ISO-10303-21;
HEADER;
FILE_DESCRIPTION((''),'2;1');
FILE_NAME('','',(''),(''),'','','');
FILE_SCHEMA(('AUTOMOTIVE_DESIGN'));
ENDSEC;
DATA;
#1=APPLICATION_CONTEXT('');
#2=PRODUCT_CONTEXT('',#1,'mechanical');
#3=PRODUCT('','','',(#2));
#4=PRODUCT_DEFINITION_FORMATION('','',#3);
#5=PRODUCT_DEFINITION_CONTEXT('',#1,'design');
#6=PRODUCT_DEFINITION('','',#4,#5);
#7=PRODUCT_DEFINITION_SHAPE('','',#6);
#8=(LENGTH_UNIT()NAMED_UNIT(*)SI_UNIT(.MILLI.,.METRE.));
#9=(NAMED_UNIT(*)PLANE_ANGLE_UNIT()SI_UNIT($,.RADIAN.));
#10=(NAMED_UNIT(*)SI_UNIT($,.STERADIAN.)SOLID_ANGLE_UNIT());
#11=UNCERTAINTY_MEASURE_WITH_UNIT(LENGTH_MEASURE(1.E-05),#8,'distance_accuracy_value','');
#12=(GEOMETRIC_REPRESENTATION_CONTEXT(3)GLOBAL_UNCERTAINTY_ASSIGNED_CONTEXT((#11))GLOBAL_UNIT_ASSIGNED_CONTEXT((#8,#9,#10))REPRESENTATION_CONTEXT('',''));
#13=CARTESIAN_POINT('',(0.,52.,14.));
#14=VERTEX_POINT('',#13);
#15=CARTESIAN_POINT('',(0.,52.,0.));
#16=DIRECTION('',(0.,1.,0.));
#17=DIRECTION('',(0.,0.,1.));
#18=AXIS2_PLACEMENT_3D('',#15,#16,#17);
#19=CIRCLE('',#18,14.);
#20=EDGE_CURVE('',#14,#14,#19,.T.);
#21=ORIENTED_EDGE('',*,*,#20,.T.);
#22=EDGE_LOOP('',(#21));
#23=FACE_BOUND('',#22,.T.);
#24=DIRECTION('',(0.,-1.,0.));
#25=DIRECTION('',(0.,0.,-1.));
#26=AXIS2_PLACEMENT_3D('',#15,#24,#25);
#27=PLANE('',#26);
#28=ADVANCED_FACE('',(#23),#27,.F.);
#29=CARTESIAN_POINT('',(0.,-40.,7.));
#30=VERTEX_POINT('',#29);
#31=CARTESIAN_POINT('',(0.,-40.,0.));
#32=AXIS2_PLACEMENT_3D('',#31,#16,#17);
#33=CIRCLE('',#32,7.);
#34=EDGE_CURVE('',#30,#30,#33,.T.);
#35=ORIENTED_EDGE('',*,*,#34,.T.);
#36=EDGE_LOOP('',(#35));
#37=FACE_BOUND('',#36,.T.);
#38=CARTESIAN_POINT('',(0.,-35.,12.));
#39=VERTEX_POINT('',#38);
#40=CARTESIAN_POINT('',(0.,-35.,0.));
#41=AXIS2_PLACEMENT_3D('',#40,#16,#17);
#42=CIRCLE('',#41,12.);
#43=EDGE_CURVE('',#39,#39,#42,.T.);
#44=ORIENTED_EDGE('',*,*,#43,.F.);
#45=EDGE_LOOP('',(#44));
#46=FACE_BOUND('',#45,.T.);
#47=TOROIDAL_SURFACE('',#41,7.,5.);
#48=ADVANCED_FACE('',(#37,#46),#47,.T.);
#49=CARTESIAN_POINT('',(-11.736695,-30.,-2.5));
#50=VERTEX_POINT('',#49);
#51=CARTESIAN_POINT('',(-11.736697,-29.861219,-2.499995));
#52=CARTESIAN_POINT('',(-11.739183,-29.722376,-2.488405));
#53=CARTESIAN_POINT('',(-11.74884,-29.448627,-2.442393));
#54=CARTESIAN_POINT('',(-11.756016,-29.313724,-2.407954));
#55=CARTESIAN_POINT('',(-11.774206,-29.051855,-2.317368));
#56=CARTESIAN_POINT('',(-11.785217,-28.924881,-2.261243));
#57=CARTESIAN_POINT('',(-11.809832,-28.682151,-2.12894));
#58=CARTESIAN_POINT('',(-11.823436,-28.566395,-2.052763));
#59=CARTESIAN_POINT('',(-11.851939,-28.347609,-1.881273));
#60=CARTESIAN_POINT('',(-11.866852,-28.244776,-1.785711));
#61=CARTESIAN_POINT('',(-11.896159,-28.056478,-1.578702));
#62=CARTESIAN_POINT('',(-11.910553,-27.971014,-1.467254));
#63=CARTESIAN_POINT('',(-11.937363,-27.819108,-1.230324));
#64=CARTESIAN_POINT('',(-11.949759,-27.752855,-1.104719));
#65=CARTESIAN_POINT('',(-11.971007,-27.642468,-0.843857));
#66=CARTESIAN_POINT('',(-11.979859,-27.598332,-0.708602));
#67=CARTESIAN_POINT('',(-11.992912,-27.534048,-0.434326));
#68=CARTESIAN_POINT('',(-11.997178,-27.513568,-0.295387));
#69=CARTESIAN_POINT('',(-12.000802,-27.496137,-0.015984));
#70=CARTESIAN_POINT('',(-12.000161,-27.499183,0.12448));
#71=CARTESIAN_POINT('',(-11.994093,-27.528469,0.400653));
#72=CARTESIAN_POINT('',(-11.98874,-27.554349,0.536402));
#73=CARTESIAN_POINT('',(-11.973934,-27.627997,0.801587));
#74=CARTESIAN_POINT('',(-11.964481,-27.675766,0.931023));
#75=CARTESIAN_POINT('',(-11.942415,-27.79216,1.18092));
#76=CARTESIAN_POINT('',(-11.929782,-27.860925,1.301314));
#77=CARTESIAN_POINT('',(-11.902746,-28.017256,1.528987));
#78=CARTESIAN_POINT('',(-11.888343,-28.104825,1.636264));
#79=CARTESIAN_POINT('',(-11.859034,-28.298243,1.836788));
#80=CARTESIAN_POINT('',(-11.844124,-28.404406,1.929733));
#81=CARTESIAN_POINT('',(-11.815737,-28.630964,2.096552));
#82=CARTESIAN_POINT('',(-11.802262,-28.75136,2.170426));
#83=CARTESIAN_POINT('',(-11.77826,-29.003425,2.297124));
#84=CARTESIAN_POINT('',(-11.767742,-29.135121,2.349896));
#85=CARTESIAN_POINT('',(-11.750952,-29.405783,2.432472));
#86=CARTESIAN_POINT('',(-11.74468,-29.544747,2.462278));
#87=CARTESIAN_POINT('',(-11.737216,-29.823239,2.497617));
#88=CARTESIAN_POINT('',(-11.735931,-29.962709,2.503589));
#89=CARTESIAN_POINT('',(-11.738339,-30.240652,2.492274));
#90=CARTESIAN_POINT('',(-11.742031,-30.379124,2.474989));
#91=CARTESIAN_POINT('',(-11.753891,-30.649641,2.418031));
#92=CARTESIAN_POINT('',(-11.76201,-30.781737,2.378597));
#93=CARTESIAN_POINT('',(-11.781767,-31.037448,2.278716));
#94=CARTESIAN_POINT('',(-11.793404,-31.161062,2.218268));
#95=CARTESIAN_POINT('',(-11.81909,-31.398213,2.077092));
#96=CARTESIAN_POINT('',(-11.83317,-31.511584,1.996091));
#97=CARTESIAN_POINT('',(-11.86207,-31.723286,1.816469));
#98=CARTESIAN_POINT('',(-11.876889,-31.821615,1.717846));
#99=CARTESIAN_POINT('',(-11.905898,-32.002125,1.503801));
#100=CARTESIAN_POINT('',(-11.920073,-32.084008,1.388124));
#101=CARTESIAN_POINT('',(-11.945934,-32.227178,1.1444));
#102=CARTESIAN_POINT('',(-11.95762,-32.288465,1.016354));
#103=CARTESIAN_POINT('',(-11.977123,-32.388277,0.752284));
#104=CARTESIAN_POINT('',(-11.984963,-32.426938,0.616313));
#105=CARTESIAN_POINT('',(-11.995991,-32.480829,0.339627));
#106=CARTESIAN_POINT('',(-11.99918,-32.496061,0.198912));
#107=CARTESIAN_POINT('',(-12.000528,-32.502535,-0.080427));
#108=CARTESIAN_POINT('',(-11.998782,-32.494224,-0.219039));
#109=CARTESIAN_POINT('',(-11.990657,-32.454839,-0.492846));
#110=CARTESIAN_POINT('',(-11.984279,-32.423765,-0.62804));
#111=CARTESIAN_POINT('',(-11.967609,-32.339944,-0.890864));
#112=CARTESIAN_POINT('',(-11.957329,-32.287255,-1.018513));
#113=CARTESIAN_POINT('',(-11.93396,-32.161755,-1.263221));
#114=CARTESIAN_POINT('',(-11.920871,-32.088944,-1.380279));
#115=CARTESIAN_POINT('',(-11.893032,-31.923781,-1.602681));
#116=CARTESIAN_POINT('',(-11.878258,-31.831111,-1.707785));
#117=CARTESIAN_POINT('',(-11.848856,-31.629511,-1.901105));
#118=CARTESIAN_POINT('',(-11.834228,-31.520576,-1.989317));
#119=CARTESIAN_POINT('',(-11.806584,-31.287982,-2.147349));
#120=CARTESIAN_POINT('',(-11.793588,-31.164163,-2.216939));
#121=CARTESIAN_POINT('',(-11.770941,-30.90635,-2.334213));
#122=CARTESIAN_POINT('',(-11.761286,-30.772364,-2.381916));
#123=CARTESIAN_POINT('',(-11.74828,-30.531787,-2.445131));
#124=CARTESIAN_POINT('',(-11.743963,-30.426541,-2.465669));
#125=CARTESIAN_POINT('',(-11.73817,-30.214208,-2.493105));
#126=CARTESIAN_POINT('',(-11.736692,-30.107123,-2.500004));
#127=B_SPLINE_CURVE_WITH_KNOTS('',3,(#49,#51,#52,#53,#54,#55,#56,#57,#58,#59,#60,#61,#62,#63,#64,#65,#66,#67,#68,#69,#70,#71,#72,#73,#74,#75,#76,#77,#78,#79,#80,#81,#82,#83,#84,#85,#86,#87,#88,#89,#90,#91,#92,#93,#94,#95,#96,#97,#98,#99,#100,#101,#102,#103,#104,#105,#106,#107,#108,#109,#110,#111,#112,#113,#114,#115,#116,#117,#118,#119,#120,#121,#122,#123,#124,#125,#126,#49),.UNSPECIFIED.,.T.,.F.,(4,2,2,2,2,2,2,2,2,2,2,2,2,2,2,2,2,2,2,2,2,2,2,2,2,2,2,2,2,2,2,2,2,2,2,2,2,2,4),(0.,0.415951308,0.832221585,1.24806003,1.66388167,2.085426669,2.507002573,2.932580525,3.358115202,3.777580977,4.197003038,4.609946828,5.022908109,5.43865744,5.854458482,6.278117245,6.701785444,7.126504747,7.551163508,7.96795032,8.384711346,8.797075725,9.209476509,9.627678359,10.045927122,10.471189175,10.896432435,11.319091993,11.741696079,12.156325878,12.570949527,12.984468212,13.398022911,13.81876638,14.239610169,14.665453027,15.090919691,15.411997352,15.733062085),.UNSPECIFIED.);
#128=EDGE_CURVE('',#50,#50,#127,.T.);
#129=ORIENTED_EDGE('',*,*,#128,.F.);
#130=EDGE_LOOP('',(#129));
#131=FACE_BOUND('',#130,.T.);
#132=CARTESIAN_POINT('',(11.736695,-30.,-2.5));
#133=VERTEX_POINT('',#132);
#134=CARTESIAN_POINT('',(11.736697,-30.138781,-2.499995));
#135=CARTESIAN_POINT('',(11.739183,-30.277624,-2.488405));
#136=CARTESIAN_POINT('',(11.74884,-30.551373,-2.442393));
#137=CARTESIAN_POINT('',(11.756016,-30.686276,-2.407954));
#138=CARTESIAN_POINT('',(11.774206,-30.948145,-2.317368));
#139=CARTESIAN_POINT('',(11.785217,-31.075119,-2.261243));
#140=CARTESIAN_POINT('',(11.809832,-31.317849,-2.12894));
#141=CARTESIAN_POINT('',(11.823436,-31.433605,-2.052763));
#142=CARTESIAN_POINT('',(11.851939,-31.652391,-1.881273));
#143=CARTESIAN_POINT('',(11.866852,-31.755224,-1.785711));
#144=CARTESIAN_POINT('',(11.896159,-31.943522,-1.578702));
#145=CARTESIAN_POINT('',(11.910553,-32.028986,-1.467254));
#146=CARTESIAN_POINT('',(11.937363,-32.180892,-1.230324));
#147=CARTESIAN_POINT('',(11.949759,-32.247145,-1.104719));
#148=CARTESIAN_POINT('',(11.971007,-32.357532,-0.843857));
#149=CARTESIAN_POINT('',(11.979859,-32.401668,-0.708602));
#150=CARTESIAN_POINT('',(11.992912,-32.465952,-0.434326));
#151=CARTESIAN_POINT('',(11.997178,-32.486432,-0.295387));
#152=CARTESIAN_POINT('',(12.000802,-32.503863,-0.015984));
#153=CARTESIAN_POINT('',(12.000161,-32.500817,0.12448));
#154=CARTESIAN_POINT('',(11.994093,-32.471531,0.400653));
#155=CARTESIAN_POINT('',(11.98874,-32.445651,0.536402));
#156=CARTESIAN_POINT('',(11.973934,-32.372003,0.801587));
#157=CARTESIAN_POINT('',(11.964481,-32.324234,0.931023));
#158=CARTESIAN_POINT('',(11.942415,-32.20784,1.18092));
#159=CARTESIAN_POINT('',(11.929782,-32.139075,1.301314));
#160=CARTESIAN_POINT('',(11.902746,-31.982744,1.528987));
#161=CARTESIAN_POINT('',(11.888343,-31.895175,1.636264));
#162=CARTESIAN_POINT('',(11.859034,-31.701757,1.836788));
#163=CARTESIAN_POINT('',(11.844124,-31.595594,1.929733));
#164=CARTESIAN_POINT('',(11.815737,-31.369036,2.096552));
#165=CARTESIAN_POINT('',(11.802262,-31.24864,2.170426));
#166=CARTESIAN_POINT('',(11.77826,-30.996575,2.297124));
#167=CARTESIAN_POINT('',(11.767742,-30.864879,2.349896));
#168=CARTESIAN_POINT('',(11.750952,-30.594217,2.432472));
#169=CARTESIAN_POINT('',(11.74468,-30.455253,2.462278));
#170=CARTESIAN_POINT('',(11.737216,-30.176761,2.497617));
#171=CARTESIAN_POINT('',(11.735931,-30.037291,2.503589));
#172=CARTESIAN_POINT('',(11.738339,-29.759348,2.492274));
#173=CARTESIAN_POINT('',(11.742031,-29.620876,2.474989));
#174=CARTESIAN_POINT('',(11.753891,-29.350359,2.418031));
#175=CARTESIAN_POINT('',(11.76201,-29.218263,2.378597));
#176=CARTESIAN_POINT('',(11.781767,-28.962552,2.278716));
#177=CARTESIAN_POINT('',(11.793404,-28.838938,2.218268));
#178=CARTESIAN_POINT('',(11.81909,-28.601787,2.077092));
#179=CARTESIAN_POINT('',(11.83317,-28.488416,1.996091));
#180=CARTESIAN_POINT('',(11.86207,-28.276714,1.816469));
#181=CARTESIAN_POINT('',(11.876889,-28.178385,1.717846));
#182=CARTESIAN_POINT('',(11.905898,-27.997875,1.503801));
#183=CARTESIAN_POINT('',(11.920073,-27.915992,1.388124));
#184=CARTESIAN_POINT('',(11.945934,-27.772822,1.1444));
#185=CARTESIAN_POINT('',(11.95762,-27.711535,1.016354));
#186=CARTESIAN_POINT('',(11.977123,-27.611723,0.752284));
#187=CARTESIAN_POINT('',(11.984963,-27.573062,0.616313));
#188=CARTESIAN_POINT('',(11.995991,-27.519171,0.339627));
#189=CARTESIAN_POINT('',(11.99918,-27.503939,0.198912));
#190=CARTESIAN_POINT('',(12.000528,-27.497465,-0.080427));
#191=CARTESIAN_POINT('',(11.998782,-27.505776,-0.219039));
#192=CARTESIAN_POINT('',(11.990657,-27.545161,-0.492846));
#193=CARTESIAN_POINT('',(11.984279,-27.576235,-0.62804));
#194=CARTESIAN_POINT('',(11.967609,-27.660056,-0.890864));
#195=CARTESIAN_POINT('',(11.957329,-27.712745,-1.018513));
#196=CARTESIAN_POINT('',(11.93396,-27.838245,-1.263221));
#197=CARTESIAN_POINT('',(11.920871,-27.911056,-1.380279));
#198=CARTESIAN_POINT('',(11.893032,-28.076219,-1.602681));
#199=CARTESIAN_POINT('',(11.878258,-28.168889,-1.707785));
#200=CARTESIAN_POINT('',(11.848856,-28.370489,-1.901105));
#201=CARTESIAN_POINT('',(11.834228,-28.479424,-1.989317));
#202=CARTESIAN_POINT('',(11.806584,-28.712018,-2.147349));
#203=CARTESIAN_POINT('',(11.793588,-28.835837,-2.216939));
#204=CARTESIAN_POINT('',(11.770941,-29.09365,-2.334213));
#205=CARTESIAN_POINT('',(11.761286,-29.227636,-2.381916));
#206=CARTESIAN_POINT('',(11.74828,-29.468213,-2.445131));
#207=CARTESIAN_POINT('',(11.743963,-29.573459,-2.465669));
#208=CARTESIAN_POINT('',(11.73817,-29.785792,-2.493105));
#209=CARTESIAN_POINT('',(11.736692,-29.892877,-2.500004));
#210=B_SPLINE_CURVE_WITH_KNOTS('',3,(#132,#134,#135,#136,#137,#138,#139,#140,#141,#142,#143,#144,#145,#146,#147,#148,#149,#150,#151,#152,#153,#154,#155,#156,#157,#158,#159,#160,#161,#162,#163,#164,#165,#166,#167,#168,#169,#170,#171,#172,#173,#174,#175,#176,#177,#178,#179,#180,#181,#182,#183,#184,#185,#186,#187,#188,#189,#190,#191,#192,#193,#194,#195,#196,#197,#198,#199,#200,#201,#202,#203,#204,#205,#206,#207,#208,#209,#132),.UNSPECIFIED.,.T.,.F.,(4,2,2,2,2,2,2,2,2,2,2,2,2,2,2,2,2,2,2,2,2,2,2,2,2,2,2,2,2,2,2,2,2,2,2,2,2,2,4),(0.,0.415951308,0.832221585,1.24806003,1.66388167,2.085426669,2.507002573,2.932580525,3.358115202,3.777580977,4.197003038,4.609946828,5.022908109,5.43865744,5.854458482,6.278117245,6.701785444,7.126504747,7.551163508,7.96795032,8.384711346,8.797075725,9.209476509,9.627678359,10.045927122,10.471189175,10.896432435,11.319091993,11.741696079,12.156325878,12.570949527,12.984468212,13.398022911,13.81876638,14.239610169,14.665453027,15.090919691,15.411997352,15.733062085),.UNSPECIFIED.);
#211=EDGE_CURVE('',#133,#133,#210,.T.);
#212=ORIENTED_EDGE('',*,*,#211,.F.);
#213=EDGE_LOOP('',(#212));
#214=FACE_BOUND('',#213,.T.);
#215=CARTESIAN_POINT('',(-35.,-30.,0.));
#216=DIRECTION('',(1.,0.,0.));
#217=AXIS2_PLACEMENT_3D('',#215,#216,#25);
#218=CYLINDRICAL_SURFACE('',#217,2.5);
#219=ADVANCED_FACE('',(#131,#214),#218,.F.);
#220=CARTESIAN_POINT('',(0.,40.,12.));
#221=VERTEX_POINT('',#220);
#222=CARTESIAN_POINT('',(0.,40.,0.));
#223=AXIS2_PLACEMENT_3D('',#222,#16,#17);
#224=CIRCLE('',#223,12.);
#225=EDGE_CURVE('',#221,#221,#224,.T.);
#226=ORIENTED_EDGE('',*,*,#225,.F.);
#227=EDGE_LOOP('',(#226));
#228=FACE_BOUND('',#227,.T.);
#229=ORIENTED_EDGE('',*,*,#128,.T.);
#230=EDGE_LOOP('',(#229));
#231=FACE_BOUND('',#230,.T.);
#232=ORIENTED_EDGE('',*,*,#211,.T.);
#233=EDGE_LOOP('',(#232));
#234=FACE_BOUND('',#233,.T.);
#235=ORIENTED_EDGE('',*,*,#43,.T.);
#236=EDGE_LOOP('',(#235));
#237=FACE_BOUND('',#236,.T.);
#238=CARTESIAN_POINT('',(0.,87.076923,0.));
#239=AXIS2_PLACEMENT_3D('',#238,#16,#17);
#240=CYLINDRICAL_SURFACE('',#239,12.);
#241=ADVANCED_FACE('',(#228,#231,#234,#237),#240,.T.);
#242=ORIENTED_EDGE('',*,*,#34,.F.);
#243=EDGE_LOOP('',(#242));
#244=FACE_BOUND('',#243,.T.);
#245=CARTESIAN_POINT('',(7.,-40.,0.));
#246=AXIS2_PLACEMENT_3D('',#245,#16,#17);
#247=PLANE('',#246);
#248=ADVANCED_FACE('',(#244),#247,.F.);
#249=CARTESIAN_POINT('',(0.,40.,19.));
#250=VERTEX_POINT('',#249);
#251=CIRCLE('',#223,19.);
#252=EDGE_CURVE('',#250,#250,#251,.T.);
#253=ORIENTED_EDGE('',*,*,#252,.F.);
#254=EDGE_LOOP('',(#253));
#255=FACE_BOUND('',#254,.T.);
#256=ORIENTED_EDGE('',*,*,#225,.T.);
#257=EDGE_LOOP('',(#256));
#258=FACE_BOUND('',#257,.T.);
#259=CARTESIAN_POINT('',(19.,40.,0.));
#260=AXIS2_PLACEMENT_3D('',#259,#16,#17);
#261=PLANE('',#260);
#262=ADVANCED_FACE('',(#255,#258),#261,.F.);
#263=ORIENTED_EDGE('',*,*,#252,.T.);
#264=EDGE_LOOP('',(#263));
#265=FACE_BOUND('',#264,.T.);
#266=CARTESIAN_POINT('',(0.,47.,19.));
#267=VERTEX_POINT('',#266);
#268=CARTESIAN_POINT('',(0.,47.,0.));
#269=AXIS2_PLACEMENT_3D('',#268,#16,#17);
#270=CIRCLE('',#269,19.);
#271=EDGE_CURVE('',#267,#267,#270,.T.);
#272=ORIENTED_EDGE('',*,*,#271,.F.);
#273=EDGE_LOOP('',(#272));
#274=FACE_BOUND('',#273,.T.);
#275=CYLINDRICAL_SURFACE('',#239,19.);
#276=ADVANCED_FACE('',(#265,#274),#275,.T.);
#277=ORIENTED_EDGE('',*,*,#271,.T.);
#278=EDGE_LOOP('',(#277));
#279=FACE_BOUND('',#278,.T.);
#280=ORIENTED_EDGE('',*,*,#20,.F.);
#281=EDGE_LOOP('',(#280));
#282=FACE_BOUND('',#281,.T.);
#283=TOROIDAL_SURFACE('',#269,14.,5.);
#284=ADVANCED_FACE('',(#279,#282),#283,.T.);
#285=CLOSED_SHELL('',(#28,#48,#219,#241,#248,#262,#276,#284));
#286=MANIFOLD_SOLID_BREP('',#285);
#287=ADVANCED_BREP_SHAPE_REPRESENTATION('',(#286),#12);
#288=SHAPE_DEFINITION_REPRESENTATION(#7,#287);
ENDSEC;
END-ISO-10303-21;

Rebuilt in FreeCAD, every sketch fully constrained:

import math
import FreeCAD as App
import Part
import Sketcher
from FreeCAD import Vector
Q = App.Units.Quantity

doc = App.newDocument("Part")
params = doc.addObject("Spreadsheet::Sheet", "Params")
for row, (alias, value) in enumerate([
    ("sketch1_radius", "5 mm"),
    ("sketch1_width", "14 mm"),
    ("sketch1_height", "92 mm"),
    ("revolution_angle", "360 deg"),
    ("sketch2_diameter", "5 mm"),
    ("pocket1_length", "70 mm"),
], start=1):
    params.set(f"A{row}", alias)
    params.set(f"B{row}", "=" + value)
    params.setAlias(f"B{row}", alias)

body = doc.addObject("PartDesign::Body", "Body")

# Sketch on XY plane
sketch1 = body.newObject("Sketcher::SketchObject", "Sketch")
sketch1.AttachmentSupport = (doc.getObject("XY_Plane"), [""])
sketch1.MapMode = "FlatFace"
sketch1.addGeometry(Part.LineSegment(Vector(14, 52, 0), Vector(0, 52, 0)), False)
sketch1.addGeometry(Part.LineSegment(Vector(0, 52, 0), Vector(0, -40, 0)), False)
sketch1.addGeometry(Part.LineSegment(Vector(0, -40, 0), Vector(7, -40, 0)), False)
sketch1.addGeometry(Part.ArcOfCircle(Part.Circle(Vector(7, -35, 0), Vector(0, 0, 1), 5), math.radians(-90), math.radians(0)), False)
sketch1.addGeometry(Part.LineSegment(Vector(12, -35, 0), Vector(12, 40, 0)), False)
sketch1.addGeometry(Part.LineSegment(Vector(12, 40, 0), Vector(19, 40, 0)), False)
sketch1.addGeometry(Part.LineSegment(Vector(19, 40, 0), Vector(19, 47, 0)), False)
sketch1.addGeometry(Part.ArcOfCircle(Part.Circle(Vector(14, 47, 0), Vector(0, 0, 1), 5), math.radians(0), math.radians(90)), False)
sketch1.addConstraint(Sketcher.Constraint("Coincident", 0, 2, 1, 1))
sketch1.addConstraint(Sketcher.Constraint("Coincident", 1, 2, 2, 1))
sketch1.addConstraint(Sketcher.Constraint("Tangent", 2, 2, 3, 1))
sketch1.addConstraint(Sketcher.Constraint("Tangent", 3, 2, 4, 1))
sketch1.addConstraint(Sketcher.Constraint("Coincident", 4, 2, 5, 1))
sketch1.addConstraint(Sketcher.Constraint("Coincident", 5, 2, 6, 1))
sketch1.addConstraint(Sketcher.Constraint("Tangent", 6, 2, 7, 1))
sketch1.addConstraint(Sketcher.Constraint("Tangent", 7, 2, 0, 1))
sketch1.addConstraint(Sketcher.Constraint("Horizontal", 0))
sketch1.addConstraint(Sketcher.Constraint("Vertical", 1))
sketch1.addConstraint(Sketcher.Constraint("Horizontal", 2))
sketch1.addConstraint(Sketcher.Constraint("Vertical", 4))
sketch1.addConstraint(Sketcher.Constraint("Horizontal", 5))
sketch1.addConstraint(Sketcher.Constraint("Vertical", 6))
sketch1.addConstraint(Sketcher.Constraint("Equal", 3, 7))
sketch1.addConstraint(Sketcher.Constraint("PointOnObject", 0, 2, -2))
sketch1.addConstraint(Sketcher.Constraint("Equal", 2, 5))
sketch1.addConstraint(Sketcher.Constraint("Equal", 5, 6))
sketch1.addConstraint(Sketcher.Constraint("Radius", 3, Q("5 mm")))
sketch1.addConstraint(Sketcher.Constraint("DistanceX", 0, 2, 0, 1, Q("14 mm")))
sketch1.addConstraint(Sketcher.Constraint("DistanceY", 1, 2, 1, 1, Q("92 mm")))
sketch1.addConstraint(Sketcher.Constraint("DistanceY", 3, 3, -1, 1, Q("35 mm")))
sketch1.setExpression("Constraints[18]", "Params.sketch1_radius")
sketch1.setExpression("Constraints[19]", "Params.sketch1_width")
sketch1.setExpression("Constraints[20]", "Params.sketch1_height")
revolution = body.newObject("PartDesign::Revolution", "Revolution")
revolution.Profile = sketch1
revolution.ReferenceAxis = (sketch1, ["V_Axis"])
revolution.setExpression("Angle", "Params.revolution_angle")

# Sketch on YZ plane
sketch2 = body.newObject("Sketcher::SketchObject", "Sketch001")
sketch2.AttachmentSupport = (doc.getObject("YZ_Plane"), [""])
sketch2.MapMode = "FlatFace"
sketch2.addGeometry(Part.Circle(Vector(-30, 0, 0), Vector(0, 0, 1), 2.5), False)
sketch2.addConstraint(Sketcher.Constraint("PointOnObject", 0, 3, -1))
sketch2.addConstraint(Sketcher.Constraint("Diameter", 0, Q("5 mm")))
sketch2.addConstraint(Sketcher.Constraint("DistanceX", 0, 3, -1, 1, Q("30 mm")))
sketch2.setExpression("Constraints[1]", "Params.sketch2_diameter")
pocket1 = body.newObject("PartDesign::Pocket", "Pocket")
pocket1.Profile = sketch2
pocket1.setExpression("Length", "Params.pocket1_length")
pocket1.Midplane = True

doc.recompute()
